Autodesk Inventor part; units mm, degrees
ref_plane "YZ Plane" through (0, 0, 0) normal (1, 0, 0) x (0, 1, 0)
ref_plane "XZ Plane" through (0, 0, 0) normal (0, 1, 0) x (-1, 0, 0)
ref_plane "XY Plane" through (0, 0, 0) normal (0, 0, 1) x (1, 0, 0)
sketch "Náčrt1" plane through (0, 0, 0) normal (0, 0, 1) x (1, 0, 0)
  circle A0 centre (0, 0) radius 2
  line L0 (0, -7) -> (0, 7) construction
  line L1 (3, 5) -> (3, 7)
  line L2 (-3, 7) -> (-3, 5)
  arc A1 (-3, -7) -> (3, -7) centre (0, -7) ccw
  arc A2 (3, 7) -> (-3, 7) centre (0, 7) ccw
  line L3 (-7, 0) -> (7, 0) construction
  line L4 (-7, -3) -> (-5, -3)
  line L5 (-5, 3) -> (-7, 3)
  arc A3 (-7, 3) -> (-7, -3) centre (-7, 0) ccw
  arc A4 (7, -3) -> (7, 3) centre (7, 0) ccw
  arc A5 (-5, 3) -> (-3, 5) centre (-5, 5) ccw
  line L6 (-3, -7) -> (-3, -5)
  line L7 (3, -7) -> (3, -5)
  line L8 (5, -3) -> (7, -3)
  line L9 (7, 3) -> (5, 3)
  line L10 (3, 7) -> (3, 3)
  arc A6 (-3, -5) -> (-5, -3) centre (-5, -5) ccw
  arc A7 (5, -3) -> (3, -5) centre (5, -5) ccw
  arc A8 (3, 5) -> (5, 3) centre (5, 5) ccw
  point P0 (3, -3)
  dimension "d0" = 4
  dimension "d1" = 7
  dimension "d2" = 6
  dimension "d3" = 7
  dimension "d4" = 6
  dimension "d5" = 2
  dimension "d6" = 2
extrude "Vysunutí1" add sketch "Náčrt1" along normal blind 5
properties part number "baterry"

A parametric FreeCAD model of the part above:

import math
import FreeCAD as App
import Part
import Sketcher

doc = App.newDocument("Part")
body = doc.addObject("PartDesign::Body", "Body")

# Sketch on XY plane
sketch1 = body.newObject("Sketcher::SketchObject", "Sketch")
sketch1.AttachmentSupport = (doc.getObject("XY_Plane"), [""])
sketch1.MapMode = "FlatFace"
sketch1.addGeometry(Part.ArcOfCircle(Part.Circle(App.Vector(5, 5, 0), App.Vector(0, 0, 1), 2), math.radians(180), math.radians(270)), False)
sketch1.addGeometry(Part.LineSegment(App.Vector(3, 5, 0), App.Vector(3, 7, 0)), False)
sketch1.addGeometry(Part.ArcOfCircle(Part.Circle(App.Vector(0, 7, 0), App.Vector(0, 0, 1), 3), math.radians(0), math.radians(180)), False)
sketch1.addGeometry(Part.LineSegment(App.Vector(-3, 7, 0), App.Vector(-3, 5, 0)), False)
sketch1.addGeometry(Part.ArcOfCircle(Part.Circle(App.Vector(-5, 5, 0), App.Vector(0, 0, 1), 2), math.radians(-90), math.radians(0)), False)
sketch1.addGeometry(Part.LineSegment(App.Vector(-5, 3, 0), App.Vector(-7, 3, 0)), False)
sketch1.addGeometry(Part.ArcOfCircle(Part.Circle(App.Vector(-7, 0, 0), App.Vector(0, 0, 1), 3), math.radians(90), math.radians(270)), False)
sketch1.addGeometry(Part.LineSegment(App.Vector(-7, -3, 0), App.Vector(-5, -3, 0)), False)
sketch1.addGeometry(Part.ArcOfCircle(Part.Circle(App.Vector(-5, -5, 0), App.Vector(0, 0, 1), 2), math.radians(0), math.radians(90)), False)
sketch1.addGeometry(Part.LineSegment(App.Vector(-3, -5, 0), App.Vector(-3, -7, 0)), False)
sketch1.addGeometry(Part.ArcOfCircle(Part.Circle(App.Vector(0, -7, 0), App.Vector(0, 0, 1), 3), math.radians(180), math.radians(360)), False)
sketch1.addGeometry(Part.LineSegment(App.Vector(3, -7, 0), App.Vector(3, -5, 0)), False)
sketch1.addGeometry(Part.ArcOfCircle(Part.Circle(App.Vector(5, -5, 0), App.Vector(0, 0, 1), 2), math.radians(90), math.radians(180)), False)
sketch1.addGeometry(Part.LineSegment(App.Vector(5, -3, 0), App.Vector(7, -3, 0)), False)
sketch1.addGeometry(Part.ArcOfCircle(Part.Circle(App.Vector(7, 0, 0), App.Vector(0, 0, 1), 3), math.radians(-90), math.radians(90)), False)
sketch1.addGeometry(Part.LineSegment(App.Vector(7, 3, 0), App.Vector(5, 3, 0)), False)
sketch1.addGeometry(Part.Circle(App.Vector(0, 0, 0), App.Vector(0, 0, 1), 2), False)
sketch1.addConstraint(Sketcher.Constraint("Tangent", 0, 1, 1, 1))
sketch1.addConstraint(Sketcher.Constraint("Tangent", 1, 2, 2, 1))
sketch1.addConstraint(Sketcher.Constraint("Tangent", 2, 2, 3, 1))
sketch1.addConstraint(Sketcher.Constraint("Tangent", 3, 2, 4, 2))
sketch1.addConstraint(Sketcher.Constraint("Tangent", 4, 1, 5, 1))
sketch1.addConstraint(Sketcher.Constraint("Tangent", 5, 2, 6, 1))
sketch1.addConstraint(Sketcher.Constraint("Tangent", 6, 2, 7, 1))
sketch1.addConstraint(Sketcher.Constraint("Tangent", 7, 2, 8, 2))
sketch1.addConstraint(Sketcher.Constraint("Tangent", 8, 1, 9, 1))
sketch1.addConstraint(Sketcher.Constraint("Tangent", 9, 2, 10, 1))
sketch1.addConstraint(Sketcher.Constraint("Tangent", 10, 2, 11, 1))
sketch1.addConstraint(Sketcher.Constraint("Tangent", 11, 2, 12, 2))
sketch1.addConstraint(Sketcher.Constraint("Tangent", 12, 1, 13, 1))
sketch1.addConstraint(Sketcher.Constraint("Tangent", 13, 2, 14, 1))
sketch1.addConstraint(Sketcher.Constraint("Tangent", 14, 2, 15, 1))
sketch1.addConstraint(Sketcher.Constraint("Tangent", 15, 2, 0, 2))
sketch1.addConstraint(Sketcher.Constraint("Vertical", 1))
sketch1.addConstraint(Sketcher.Constraint("Vertical", 3))
sketch1.addConstraint(Sketcher.Constraint("Horizontal", 5))
sketch1.addConstraint(Sketcher.Constraint("Horizontal", 7))
sketch1.addConstraint(Sketcher.Constraint("Vertical", 9))
sketch1.addConstraint(Sketcher.Constraint("Vertical", 11))
sketch1.addConstraint(Sketcher.Constraint("Horizontal", 13))
sketch1.addConstraint(Sketcher.Constraint("Horizontal", 15))
sketch1.addConstraint(Sketcher.Constraint("Coincident", 16, 3, -1, 1))
sketch1.addConstraint(Sketcher.Constraint("Equal", 0, 4))
sketch1.addConstraint(Sketcher.Constraint("Equal", 2, 6))
sketch1.addConstraint(Sketcher.Constraint("Equal", 4, 8))
sketch1.addConstraint(Sketcher.Constraint("Equal", 6, 10))
sketch1.addConstraint(Sketcher.Constraint("Equal", 8, 12))
sketch1.addConstraint(Sketcher.Constraint("Equal", 10, 14))
sketch1.addConstraint(Sketcher.Constraint("Equal", 12, 16))
sketch1.addConstraint(Sketcher.Constraint("Symmetric", 0, 3, 8, 3, -1, 1))
sketch1.addConstraint(Sketcher.Constraint("Symmetric", 0, 3, 4, 3, -2))
sketch1.addConstraint(Sketcher.Constraint("Equal", 7, 13))
sketch1.addConstraint(Sketcher.Constraint("Equal", 15, 1))
sketch1.addConstraint(Sketcher.Constraint("Equal", 3, 9))
sketch1.addConstraint(Sketcher.Constraint("Diameter", 16, 4.0))
sketch1.addConstraint(Sketcher.Constraint("Radius", 2, 3.0))
sketch1.addConstraint(Sketcher.Constraint("DistanceX", 5, 2, 5, 1, 2.0))
pad1 = body.newObject("PartDesign::Pad", "Pad")
pad1.Profile = sketch1
pad1.Length = 5

doc.recompute()
